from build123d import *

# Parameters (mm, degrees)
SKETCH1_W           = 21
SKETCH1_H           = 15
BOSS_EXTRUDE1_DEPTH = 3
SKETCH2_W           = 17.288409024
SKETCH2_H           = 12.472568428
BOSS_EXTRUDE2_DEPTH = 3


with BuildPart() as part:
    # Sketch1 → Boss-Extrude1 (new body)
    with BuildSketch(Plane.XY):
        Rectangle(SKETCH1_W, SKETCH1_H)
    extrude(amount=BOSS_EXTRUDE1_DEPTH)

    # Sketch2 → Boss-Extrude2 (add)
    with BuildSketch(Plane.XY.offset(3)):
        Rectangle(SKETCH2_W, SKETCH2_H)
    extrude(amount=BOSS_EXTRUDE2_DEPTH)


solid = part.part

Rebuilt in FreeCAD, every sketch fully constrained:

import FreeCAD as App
import Part
import Sketcher

V = App.Vector


def add_polygon(sketch, points):
    """Adds a closed chain of lines whose ends are joined by coincident constraints."""
    first, n = sketch.GeometryCount, len(points)
    for a, b in zip(points, points[1:] + points[:1]):
        sketch.addGeometry(Part.LineSegment(App.Vector(*a, 0), App.Vector(*b, 0)), False)
    for i in range(n):
        sketch.addConstraint(Sketcher.Constraint("Coincident", first + i, 2, first + (i + 1) % n, 1))

doc = App.newDocument("Part")
body = doc.addObject("PartDesign::Body", "Body")

sketch1 = body.newObject("Sketcher::SketchObject", "Sketch")
sketch1.AttachmentSupport = (doc.getObject("XY_Plane"), [""])
sketch1.MapMode = "FlatFace"
add_polygon(sketch1, [(-10.5, 7.5), (-10.5, -7.5), (10.5, -7.5), (10.5, 7.5)])
sketch1.addConstraint([
    Sketcher.Constraint("Vertical", 0),
    Sketcher.Constraint("Horizontal", 1),
    Sketcher.Constraint("Vertical", 2),
    Sketcher.Constraint("Horizontal", 3),
    Sketcher.Constraint("Symmetric", 0, 2, 2, 2, -1, 1),
    Sketcher.Constraint("DistanceX", 1, 1, 1, 2, 21.0),
    Sketcher.Constraint("DistanceY", 0, 2, 0, 1, 15.0),
])
pad1 = body.newObject("PartDesign::Pad", "Pad")
pad1.Profile = sketch1
pad1.Length = 3

sketch2 = body.newObject("Sketcher::SketchObject", "Sketch001")
sketch2.AttachmentSupport = (doc.getObject("XY_Plane"), [""])
sketch2.MapMode = "FlatFace"
sketch2.AttachmentOffset = App.Placement(V(0, 0, 3), App.Rotation())
add_polygon(sketch2, [(-8.644205, 6.236284), (-8.644205, -6.236284), (8.644205, -6.236284), (8.644205, 6.236284)])
sketch2.addConstraint([
    Sketcher.Constraint("Vertical", 0),
    Sketcher.Constraint("Horizontal", 1),
    Sketcher.Constraint("Vertical", 2),
    Sketcher.Constraint("Horizontal", 3),
    Sketcher.Constraint("Symmetric", 0, 2, 2, 2, -1, 1),
    Sketcher.Constraint("DistanceX", 1, 1, 1, 2, 17.288409),
    Sketcher.Constraint("DistanceY", 0, 2, 0, 1, 12.472568),
])
pad2 = body.newObject("PartDesign::Pad", "Pad001")
pad2.Profile = sketch2
pad2.Length = 3

doc.recompute()
